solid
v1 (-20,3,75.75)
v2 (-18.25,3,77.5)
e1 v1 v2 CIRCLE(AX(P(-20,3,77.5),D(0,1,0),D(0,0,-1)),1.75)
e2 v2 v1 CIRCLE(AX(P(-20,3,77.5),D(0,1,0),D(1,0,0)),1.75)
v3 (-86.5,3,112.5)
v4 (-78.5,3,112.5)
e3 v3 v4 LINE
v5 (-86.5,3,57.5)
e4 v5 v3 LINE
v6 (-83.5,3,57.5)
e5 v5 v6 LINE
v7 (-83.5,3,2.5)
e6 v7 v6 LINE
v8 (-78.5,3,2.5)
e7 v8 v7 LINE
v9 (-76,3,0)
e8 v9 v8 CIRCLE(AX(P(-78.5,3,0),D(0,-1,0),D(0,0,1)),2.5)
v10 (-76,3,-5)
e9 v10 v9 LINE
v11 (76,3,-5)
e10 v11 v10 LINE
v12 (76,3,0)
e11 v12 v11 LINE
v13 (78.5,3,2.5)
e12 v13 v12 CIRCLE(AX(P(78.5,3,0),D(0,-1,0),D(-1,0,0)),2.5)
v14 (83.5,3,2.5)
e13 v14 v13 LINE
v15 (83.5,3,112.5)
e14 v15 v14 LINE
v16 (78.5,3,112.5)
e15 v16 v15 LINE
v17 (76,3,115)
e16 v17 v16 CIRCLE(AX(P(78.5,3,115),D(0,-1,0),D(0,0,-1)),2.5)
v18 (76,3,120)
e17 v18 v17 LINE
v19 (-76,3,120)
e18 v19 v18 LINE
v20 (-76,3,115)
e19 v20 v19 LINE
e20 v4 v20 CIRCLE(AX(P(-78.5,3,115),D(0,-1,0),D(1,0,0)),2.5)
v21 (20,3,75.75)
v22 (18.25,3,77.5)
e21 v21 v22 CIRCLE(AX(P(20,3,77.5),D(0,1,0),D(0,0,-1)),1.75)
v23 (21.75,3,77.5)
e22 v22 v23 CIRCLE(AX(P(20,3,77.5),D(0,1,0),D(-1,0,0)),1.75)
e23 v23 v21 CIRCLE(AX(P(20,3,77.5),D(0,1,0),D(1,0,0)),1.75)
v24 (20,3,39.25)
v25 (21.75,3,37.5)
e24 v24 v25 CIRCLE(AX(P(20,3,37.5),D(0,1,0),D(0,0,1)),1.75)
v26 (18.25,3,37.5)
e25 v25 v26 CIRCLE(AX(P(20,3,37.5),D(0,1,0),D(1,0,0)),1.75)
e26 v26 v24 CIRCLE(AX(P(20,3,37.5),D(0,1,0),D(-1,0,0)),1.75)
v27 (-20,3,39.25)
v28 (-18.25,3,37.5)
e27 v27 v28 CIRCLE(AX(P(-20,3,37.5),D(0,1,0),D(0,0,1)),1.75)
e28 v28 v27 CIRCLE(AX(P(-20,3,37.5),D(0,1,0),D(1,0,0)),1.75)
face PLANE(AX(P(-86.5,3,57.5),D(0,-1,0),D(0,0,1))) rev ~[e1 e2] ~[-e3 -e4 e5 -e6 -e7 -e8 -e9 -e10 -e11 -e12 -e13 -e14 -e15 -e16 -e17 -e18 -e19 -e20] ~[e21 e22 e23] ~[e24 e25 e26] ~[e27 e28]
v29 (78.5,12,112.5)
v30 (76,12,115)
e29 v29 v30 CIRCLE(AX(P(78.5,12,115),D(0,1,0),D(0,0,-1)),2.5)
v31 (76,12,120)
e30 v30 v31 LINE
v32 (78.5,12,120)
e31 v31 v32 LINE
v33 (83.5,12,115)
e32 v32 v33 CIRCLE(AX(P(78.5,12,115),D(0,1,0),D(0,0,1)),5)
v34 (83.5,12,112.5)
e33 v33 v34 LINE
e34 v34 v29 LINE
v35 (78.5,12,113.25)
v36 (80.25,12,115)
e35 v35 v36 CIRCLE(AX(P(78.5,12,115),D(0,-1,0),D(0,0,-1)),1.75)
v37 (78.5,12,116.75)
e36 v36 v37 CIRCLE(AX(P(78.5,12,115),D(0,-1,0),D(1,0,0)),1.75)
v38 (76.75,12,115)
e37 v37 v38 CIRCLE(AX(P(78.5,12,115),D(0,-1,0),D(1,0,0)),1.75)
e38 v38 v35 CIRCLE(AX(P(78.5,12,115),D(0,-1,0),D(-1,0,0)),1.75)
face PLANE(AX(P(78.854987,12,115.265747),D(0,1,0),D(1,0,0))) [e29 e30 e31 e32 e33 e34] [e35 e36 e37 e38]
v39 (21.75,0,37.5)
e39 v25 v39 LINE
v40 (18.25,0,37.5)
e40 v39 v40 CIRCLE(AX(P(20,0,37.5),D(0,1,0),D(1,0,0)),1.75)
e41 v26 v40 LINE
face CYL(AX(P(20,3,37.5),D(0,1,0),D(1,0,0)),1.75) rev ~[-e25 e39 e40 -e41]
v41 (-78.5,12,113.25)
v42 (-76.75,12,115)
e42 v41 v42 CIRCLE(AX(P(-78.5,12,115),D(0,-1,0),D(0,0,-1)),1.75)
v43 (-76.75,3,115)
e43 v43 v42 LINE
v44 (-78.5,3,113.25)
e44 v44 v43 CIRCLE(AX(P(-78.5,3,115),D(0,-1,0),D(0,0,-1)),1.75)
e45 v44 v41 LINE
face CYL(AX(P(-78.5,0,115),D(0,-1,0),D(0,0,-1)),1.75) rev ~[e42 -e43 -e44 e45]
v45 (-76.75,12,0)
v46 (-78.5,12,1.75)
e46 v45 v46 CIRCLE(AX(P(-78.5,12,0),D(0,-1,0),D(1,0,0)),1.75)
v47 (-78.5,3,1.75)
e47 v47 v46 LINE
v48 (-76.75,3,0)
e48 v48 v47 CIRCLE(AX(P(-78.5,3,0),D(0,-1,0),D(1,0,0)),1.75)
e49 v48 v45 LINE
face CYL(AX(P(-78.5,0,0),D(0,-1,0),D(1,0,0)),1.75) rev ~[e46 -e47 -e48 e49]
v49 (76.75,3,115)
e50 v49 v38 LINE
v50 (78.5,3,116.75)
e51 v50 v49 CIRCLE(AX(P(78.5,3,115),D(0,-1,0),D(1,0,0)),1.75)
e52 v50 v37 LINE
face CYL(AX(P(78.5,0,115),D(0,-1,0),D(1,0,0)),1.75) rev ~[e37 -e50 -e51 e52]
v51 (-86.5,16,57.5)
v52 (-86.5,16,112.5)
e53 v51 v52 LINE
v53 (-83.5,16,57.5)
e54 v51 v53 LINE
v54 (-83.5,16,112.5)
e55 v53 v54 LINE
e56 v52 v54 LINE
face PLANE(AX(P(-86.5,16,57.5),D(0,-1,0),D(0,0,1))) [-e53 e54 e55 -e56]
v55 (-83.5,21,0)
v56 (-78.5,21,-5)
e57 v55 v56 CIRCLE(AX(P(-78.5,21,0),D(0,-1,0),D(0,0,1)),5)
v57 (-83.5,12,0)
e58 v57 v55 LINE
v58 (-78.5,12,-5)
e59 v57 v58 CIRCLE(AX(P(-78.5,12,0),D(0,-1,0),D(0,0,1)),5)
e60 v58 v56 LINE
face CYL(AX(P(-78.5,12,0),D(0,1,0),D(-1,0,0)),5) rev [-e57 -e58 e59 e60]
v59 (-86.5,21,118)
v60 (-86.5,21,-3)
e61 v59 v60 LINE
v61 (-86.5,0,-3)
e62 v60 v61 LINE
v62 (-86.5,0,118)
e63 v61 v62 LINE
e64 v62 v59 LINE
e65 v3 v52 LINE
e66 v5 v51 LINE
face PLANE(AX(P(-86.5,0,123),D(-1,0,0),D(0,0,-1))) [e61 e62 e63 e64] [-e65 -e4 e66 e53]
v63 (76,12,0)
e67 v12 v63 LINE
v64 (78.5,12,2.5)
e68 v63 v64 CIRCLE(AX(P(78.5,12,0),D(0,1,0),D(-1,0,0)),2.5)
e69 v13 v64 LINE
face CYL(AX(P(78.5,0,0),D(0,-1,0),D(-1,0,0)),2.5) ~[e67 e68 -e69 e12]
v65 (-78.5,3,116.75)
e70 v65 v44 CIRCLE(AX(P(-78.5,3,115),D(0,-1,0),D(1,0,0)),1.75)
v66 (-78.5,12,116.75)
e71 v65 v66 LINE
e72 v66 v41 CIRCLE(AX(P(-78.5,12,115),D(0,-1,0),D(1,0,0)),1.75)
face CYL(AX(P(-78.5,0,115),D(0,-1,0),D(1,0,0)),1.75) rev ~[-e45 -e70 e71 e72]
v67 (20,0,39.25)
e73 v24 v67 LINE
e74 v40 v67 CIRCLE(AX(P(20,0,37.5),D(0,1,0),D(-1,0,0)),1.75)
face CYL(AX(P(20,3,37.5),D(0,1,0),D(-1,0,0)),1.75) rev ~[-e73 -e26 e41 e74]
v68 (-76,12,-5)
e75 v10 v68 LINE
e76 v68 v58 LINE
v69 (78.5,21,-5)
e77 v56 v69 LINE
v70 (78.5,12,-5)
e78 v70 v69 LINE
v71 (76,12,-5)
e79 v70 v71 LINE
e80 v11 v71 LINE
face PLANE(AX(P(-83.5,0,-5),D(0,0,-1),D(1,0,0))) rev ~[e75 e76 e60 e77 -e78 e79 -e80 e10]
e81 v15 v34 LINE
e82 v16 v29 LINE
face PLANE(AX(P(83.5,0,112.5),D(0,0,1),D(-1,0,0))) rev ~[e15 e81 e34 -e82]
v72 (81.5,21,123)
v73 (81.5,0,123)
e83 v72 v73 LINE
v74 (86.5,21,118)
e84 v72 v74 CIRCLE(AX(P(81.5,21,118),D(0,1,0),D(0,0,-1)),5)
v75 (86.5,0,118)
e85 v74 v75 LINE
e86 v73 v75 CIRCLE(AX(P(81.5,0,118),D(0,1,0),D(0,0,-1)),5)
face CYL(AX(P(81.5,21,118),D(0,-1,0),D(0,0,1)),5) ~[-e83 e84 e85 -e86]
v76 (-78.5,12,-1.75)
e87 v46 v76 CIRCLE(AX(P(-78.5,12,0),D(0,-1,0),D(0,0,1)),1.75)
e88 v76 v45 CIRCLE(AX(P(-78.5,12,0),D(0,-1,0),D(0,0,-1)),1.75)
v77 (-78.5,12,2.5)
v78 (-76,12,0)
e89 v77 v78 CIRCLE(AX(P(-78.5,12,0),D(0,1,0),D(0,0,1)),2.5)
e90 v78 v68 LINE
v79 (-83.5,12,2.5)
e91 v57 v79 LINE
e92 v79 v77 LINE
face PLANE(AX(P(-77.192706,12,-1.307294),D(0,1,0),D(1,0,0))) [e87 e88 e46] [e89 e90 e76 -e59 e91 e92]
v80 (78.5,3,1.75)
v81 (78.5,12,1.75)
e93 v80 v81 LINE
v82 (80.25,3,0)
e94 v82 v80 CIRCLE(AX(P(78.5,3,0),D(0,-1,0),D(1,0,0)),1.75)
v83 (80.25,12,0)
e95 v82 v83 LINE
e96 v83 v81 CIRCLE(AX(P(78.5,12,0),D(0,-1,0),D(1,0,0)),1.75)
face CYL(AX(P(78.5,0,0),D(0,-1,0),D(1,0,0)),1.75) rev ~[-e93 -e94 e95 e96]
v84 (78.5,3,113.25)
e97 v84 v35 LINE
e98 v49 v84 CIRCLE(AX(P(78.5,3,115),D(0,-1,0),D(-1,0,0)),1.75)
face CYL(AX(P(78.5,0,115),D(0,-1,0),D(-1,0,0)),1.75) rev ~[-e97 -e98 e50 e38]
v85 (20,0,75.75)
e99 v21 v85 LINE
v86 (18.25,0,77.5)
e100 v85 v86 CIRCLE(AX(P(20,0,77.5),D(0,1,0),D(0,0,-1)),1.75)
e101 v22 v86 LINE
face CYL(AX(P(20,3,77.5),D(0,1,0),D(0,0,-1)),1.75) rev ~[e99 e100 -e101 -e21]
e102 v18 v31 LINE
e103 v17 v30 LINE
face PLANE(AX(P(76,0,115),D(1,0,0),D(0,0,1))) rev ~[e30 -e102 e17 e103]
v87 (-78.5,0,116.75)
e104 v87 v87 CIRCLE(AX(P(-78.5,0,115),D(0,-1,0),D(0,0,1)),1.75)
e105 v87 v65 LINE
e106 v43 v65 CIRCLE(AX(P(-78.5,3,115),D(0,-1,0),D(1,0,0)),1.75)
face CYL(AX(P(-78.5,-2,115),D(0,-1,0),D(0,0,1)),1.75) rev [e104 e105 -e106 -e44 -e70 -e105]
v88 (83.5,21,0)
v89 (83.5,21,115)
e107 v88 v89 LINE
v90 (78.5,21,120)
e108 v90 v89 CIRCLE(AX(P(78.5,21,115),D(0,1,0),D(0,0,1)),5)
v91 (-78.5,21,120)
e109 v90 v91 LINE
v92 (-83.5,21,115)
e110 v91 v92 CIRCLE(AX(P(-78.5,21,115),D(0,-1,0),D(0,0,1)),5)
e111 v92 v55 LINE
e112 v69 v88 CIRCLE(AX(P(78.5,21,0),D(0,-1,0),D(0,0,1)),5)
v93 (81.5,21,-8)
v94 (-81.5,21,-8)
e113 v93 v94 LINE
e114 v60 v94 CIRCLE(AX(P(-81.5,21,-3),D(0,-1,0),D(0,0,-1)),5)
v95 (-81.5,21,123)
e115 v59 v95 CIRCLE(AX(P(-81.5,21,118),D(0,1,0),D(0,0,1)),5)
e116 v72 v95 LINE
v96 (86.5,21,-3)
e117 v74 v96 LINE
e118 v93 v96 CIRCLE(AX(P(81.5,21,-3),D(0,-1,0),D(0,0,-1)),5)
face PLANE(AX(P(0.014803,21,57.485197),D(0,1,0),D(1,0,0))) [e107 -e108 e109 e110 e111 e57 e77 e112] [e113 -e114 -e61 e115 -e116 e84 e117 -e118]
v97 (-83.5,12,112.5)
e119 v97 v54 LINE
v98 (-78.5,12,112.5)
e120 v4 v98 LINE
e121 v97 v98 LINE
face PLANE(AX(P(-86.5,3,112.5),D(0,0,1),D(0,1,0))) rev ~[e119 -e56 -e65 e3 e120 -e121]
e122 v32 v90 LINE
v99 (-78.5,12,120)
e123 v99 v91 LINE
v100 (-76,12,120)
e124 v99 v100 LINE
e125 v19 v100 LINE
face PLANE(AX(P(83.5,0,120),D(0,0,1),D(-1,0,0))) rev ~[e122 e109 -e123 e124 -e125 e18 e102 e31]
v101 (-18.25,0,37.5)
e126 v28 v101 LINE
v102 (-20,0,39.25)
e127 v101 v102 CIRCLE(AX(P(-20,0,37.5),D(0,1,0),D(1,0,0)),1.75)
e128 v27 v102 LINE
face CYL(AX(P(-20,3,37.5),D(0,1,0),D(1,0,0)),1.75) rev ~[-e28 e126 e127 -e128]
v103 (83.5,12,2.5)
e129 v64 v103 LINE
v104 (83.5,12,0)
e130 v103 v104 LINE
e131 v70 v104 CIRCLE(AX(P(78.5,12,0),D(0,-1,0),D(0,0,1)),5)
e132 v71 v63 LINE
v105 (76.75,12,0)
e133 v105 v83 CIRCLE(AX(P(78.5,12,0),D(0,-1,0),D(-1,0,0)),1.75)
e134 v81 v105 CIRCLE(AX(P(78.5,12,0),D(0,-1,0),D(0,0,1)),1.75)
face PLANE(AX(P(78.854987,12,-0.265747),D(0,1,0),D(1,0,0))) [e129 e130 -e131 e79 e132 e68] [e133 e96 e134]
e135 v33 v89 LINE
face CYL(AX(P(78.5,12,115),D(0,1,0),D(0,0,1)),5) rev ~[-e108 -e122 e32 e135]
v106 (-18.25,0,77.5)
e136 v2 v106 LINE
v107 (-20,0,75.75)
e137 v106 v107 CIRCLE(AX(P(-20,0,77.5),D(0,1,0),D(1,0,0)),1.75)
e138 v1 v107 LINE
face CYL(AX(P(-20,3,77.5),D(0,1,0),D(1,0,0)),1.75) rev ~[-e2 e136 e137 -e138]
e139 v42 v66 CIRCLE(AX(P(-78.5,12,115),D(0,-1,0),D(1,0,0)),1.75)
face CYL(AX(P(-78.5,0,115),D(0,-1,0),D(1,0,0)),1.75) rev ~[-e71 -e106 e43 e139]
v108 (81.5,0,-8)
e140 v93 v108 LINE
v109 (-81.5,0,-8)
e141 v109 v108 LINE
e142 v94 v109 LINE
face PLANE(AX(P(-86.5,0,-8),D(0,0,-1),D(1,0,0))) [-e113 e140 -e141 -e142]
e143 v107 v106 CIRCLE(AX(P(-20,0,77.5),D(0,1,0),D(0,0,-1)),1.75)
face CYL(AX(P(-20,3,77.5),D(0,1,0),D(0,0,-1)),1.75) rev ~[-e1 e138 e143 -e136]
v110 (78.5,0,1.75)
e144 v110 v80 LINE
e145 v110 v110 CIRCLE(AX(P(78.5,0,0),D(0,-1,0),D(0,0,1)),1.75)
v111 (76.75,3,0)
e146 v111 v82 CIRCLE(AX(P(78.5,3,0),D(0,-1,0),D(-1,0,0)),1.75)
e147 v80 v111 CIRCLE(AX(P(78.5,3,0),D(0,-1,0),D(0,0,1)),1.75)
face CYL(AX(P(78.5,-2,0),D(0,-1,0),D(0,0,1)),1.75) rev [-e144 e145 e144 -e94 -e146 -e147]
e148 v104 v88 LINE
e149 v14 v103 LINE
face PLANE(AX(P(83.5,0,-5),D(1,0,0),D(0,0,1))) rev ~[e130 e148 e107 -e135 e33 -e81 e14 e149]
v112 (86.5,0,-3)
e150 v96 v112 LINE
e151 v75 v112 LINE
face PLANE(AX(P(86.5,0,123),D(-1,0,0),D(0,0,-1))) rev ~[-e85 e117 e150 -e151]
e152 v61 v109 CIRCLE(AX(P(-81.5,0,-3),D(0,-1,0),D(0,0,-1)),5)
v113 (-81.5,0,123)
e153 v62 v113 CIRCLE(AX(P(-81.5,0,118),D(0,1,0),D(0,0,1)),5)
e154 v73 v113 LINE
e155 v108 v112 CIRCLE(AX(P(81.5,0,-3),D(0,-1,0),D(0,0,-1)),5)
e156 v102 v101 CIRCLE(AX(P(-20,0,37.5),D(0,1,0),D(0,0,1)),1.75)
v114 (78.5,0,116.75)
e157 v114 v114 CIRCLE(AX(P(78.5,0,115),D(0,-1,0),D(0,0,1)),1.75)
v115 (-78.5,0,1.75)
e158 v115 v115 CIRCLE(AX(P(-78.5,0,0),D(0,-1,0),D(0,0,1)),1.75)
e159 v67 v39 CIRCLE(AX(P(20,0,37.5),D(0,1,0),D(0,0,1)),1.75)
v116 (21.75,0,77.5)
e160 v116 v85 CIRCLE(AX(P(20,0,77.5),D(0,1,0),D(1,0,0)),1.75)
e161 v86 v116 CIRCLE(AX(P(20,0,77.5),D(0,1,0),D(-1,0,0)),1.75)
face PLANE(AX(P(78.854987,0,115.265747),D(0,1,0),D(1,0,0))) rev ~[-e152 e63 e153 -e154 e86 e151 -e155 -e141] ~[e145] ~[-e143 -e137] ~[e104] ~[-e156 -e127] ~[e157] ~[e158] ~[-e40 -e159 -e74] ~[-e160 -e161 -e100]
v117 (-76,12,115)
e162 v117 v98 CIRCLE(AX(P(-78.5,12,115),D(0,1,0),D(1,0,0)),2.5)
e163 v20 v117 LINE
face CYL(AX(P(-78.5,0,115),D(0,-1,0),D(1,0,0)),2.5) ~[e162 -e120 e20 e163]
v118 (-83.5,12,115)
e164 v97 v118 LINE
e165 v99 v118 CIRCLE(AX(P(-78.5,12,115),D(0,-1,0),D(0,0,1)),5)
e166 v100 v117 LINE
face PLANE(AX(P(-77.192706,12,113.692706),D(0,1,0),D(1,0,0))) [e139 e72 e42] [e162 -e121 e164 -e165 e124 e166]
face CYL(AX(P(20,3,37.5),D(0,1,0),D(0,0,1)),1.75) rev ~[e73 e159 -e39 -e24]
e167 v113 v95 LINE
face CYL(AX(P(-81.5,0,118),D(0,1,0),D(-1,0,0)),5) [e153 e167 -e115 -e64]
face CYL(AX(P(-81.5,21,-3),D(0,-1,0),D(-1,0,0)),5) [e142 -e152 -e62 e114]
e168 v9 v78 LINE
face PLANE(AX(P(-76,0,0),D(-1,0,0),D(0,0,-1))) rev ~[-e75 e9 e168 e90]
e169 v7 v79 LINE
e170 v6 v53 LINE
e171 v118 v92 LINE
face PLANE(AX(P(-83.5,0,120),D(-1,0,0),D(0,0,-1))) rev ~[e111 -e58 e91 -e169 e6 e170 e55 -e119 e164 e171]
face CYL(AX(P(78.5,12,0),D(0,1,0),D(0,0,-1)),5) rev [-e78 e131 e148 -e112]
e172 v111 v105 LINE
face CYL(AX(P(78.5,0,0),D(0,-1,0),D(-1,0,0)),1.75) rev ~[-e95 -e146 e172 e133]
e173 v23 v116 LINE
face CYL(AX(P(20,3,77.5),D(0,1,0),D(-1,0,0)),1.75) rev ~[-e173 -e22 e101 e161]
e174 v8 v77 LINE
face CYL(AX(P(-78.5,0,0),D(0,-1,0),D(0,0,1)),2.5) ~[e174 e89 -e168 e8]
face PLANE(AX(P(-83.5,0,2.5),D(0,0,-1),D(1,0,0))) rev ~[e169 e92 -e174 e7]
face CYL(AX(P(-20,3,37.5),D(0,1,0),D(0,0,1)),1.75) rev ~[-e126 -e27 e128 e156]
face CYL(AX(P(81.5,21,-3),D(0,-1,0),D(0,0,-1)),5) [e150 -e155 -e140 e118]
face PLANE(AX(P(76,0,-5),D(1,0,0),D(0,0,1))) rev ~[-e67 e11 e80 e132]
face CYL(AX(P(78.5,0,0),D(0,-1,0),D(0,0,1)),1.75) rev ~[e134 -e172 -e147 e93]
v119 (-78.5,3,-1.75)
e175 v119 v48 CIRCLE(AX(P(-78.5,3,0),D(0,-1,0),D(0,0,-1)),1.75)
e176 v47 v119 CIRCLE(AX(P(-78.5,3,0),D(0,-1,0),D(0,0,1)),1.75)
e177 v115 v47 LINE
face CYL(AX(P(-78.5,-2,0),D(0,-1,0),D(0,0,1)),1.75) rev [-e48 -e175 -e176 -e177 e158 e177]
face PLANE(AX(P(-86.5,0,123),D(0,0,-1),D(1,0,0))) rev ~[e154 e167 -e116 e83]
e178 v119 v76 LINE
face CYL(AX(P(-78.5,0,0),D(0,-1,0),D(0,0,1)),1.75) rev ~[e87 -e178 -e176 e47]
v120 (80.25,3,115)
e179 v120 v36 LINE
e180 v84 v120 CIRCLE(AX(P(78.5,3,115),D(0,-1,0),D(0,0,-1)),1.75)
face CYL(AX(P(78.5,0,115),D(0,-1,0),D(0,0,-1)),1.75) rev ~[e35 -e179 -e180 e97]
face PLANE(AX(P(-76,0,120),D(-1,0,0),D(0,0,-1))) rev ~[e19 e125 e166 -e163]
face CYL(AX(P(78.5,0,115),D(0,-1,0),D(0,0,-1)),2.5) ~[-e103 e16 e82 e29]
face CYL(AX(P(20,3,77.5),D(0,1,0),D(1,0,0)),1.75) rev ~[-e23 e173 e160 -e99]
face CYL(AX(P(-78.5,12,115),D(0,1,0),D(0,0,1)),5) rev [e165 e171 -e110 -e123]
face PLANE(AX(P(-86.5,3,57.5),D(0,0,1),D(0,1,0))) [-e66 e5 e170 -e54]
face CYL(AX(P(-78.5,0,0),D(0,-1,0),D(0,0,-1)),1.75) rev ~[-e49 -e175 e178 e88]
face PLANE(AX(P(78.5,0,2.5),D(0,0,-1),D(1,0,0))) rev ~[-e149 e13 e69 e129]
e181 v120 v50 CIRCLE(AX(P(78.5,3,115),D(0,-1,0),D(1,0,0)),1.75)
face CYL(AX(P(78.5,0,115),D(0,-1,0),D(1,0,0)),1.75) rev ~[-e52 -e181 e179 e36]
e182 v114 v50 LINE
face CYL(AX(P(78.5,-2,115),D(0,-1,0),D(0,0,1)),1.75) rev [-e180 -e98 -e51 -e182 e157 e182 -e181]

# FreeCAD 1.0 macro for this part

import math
import FreeCAD as App
import Part
import Sketcher
from FreeCAD import Vector


def edges_at(feature, points):
    """Names of the edges that pass closest to the given points."""
    edges = feature.Shape.Edges
    near = lambda p: min(range(len(edges)), key=lambda i: edges[i].distToShape(Part.Vertex(*p))[0])
    return sorted({f"Edge{near(p) + 1}" for p in points})


def add_polygon(sketch, points):
    """Adds a closed chain of lines whose ends are joined by coincident constraints."""
    first, n = sketch.GeometryCount, len(points)
    for a, b in zip(points, points[1:] + points[:1]):
        sketch.addGeometry(Part.LineSegment(App.Vector(*a, 0), App.Vector(*b, 0)), False)
    for i in range(n):
        sketch.addConstraint(Sketcher.Constraint("Coincident", first + i, 2, first + (i + 1) % n, 1))

doc = App.newDocument("Part")
body = doc.addObject("PartDesign::Body", "Body")

# Sketch on XZ plane
sketch1 = body.newObject("Sketcher::SketchObject", "Sketch")
sketch1.AttachmentSupport = (doc.getObject("XZ_Plane"), [""])
sketch1.MapMode = "FlatFace"
add_polygon(sketch1, [(-86, -8), (-86, 123), (86, 123), (86, -8)])  # lines 0-3
sketch1.addConstraint([
    Sketcher.Constraint("Vertical", 0),
    Sketcher.Constraint("Horizontal", 1),
    Sketcher.Constraint("Vertical", 2),
    Sketcher.Constraint("Horizontal", 3),
    Sketcher.Constraint("DistanceX", 1, 1, 1, 2, 173.0),
    Sketcher.Constraint("DistanceY", 0, 1, 0, 2, 131.0),
    Sketcher.Constraint("DistanceY", -1, 1, 0, 2, 123.0),
    Sketcher.Constraint("DistanceX", 0, 2, -1, 1, 86.5),
])
pad1 = body.newObject("PartDesign::Pad", "Pad")
pad1.Profile = sketch1
pad1.Length = 3
pad1.Reversed = True

# Sketch on XZ plane
sketch2 = body.newObject("Sketcher::SketchObject", "Sketch001")
sketch2.AttachmentSupport = (doc.getObject("XZ_Plane"), [""])
sketch2.MapMode = "FlatFace"
add_polygon(sketch2, [(86, -8), (-86, -8), (-86, 123), (86, 123)])  # lines 0-3
add_polygon(sketch2, [(84, 120), (-84, 120), (-84, -5), (84, -5)])  # lines 4-7
sketch2.addConstraint([
    Sketcher.Constraint("Horizontal", 0),
    Sketcher.Constraint("Vertical", 1),
    Sketcher.Constraint("Horizontal", 2),
    Sketcher.Constraint("Vertical", 3),
    Sketcher.Constraint("Horizontal", 4),
    Sketcher.Constraint("Vertical", 5),
    Sketcher.Constraint("Horizontal", 6),
    Sketcher.Constraint("Vertical", 7),
    Sketcher.Constraint("DistanceX", 0, 2, 0, 1, 173.0),
    Sketcher.Constraint("DistanceX", 4, 2, 4, 1, 167.0),
    Sketcher.Constraint("DistanceY", 1, 1, 1, 2, 131.0),
    Sketcher.Constraint("DistanceY", 5, 2, 5, 1, 125.0),
    Sketcher.Constraint("DistanceY", 0, 2, -1, 1, 8.0),
    Sketcher.Constraint("DistanceY", -1, 1, 4, 2, 120.0),
    Sketcher.Constraint("DistanceX", 1, 2, 4, 2, 3.0),
    Sketcher.Constraint("DistanceX", 0, 2, -1, 1, 86.5),
])
pad2 = body.newObject("PartDesign::Pad", "Pad001")
pad2.Profile = sketch2
pad2.Length = 21
pad2.Reversed = True

# Sketch on XZ plane
sketch3 = body.newObject("Sketcher::SketchObject", "Sketch002")
sketch3.AttachmentSupport = (doc.getObject("XZ_Plane"), [""])
sketch3.MapMode = "FlatFace"
sketch3.addGeometry([
    Part.ArcOfCircle(Part.Circle(Vector(78.5, 115, 0), Vector(0, 0, 1), 2.5), math.radians(180), math.radians(270)),  # 0
    Part.LineSegment(Vector(76, 115, 0), Vector(76, 120, 0)),  # 1
    Part.LineSegment(Vector(76, 120, 0), Vector(83.5, 120, 0)),  # 2
    Part.LineSegment(Vector(83.5, 120, 0), Vector(83.5, 112.5, 0)),  # 3
    Part.LineSegment(Vector(83.5, 112.5, 0), Vector(78.5, 112.5, 0)),  # 4
    Part.ArcOfCircle(Part.Circle(Vector(78.5, 115, 0), Vector(0, 0, 1), 1.8), math.radians(0), math.radians(180)),  # 5
    Part.ArcOfCircle(Part.Circle(Vector(78.5, 115, 0), Vector(0, 0, 1), 1.8), math.radians(180), math.radians(270)),  # 6
    Part.ArcOfCircle(Part.Circle(Vector(78.5, 115, 0), Vector(0, 0, 1), 1.8), math.radians(-90), math.radians(0)),  # 7
    Part.ArcOfCircle(Part.Circle(Vector(-78.5, 115, 0), Vector(0, 0, 1), 2.5), math.radians(-90), math.radians(0)),  # 8
    Part.LineSegment(Vector(-78.5, 112.5, 0), Vector(-83.5, 112.5, 0)),  # 9
    Part.LineSegment(Vector(-83.5, 112.5, 0), Vector(-83.5, 120, 0)),  # 10
    Part.LineSegment(Vector(-83.5, 120, 0), Vector(-76, 120, 0)),  # 11
    Part.LineSegment(Vector(-76, 120, 0), Vector(-76, 115, 0)),  # 12
    Part.ArcOfCircle(Part.Circle(Vector(-78.5, 115, 0), Vector(0, 0, 1), 1.8), math.radians(-90), math.radians(0)),  # 13
    Part.ArcOfCircle(Part.Circle(Vector(-78.5, 115, 0), Vector(0, 0, 1), 1.8), math.radians(0), math.radians(270)),  # 14
    Part.LineSegment(Vector(-83.5, -5, 0), Vector(-83.5, 2.5, 0)),  # 15
    Part.LineSegment(Vector(-83.5, 2.5, 0), Vector(-78.5, 2.5, 0)),  # 16
    Part.ArcOfCircle(Part.Circle(Vector(-78.5, 0, 0), Vector(0, 0, 1), 2.5), math.radians(0), math.radians(90)),  # 17
    Part.LineSegment(Vector(-76, 0, 0), Vector(-76, -5, 0)),  # 18
    Part.LineSegment(Vector(-76, -5, 0), Vector(-83.5, -5, 0)),  # 19
    Part.ArcOfCircle(Part.Circle(Vector(-78.5, 0, 0), Vector(0, 0, 1), 1.8), math.radians(90), math.radians(270)),  # 20
    Part.ArcOfCircle(Part.Circle(Vector(-78.5, 0, 0), Vector(0, 0, 1), 1.8), math.radians(-90), math.radians(0)),  # 21
    Part.ArcOfCircle(Part.Circle(Vector(-78.5, 0, 0), Vector(0, 0, 1), 1.8), math.radians(0), math.radians(90)),  # 22
    Part.ArcOfCircle(Part.Circle(Vector(78.5, 0, 0), Vector(0, 0, 1), 2.5), math.radians(90), math.radians(180)),  # 23
    Part.LineSegment(Vector(78.5, 2.5, 0), Vector(83.5, 2.5, 0)),  # 24
    Part.LineSegment(Vector(83.5, 2.5, 0), Vector(83.5, -5, 0)),  # 25
    Part.LineSegment(Vector(83.5, -5, 0), Vector(76, -5, 0)),  # 26
    Part.LineSegment(Vector(76, -5, 0), Vector(76, 0, 0)),  # 27
    Part.ArcOfCircle(Part.Circle(Vector(78.5, 0, 0), Vector(0, 0, 1), 1.8), math.radians(0), math.radians(90)),  # 28
    Part.ArcOfCircle(Part.Circle(Vector(78.5, 0, 0), Vector(0, 0, 1), 1.8), math.radians(90), math.radians(180)),  # 29
    Part.ArcOfCircle(Part.Circle(Vector(78.5, 0, 0), Vector(0, 0, 1), 1.8), math.radians(180), math.radians(360)),  # 30
], False)
sketch3.addConstraint([
    Sketcher.Constraint("Tangent", 0, 1, 1, 1),
    Sketcher.Constraint("Coincident", 1, 2, 2, 1),
    Sketcher.Constraint("Coincident", 2, 2, 3, 1),
    Sketcher.Constraint("Coincident", 3, 2, 4, 1),
    Sketcher.Constraint("Tangent", 4, 2, 0, 2),
    Sketcher.Constraint("Tangent", 5, 2, 6, 1),
    Sketcher.Constraint("Tangent", 6, 2, 7, 1),
    Sketcher.Constraint("Tangent", 7, 2, 5, 1),
    Sketcher.Constraint("Tangent", 8, 1, 9, 1),
    Sketcher.Constraint("Coincident", 9, 2, 10, 1),
    Sketcher.Constraint("Coincident", 10, 2, 11, 1),
    Sketcher.Constraint("Coincident", 11, 2, 12, 1),
    Sketcher.Constraint("Tangent", 12, 2, 8, 2),
    Sketcher.Constraint("Tangent", 13, 1, 14, 2),
    Sketcher.Constraint("Coincident", 14, 1, 13, 2),
    Sketcher.Constraint("Coincident", 15, 2, 16, 1),
    Sketcher.Constraint("Tangent", 16, 2, 17, 2),
    Sketcher.Constraint("Tangent", 17, 1, 18, 1),
    Sketcher.Constraint("Coincident", 18, 2, 19, 1),
    Sketcher.Constraint("Coincident", 19, 2, 15, 1),
    Sketcher.Constraint("Tangent", 20, 2, 21, 1),
    Sketcher.Constraint("Tangent", 21, 2, 22, 1),
    Sketcher.Constraint("Tangent", 22, 2, 20, 1),
    Sketcher.Constraint("Tangent", 23, 1, 24, 1),
    Sketcher.Constraint("Coincident", 24, 2, 25, 1),
    Sketcher.Constraint("Coincident", 25, 2, 26, 1),
    Sketcher.Constraint("Coincident", 26, 2, 27, 1),
    Sketcher.Constraint("Tangent", 27, 2, 23, 2),
    Sketcher.Constraint("Tangent", 28, 2, 29, 1),
    Sketcher.Constraint("Tangent", 29, 2, 30, 1),
    Sketcher.Constraint("Tangent", 30, 2, 28, 1),
    Sketcher.Constraint("Vertical", 1),
    Sketcher.Constraint("Horizontal", 2),
    Sketcher.Constraint("Vertical", 3),
    Sketcher.Constraint("Horizontal", 4),
    Sketcher.Constraint("Horizontal", 9),
    Sketcher.Constraint("Vertical", 10),
    Sketcher.Constraint("Horizontal", 11),
    Sketcher.Constraint("Vertical", 12),
    Sketcher.Constraint("Vertical", 15),
    Sketcher.Constraint("Horizontal", 16),
    Sketcher.Constraint("Vertical", 18),
    Sketcher.Constraint("Horizontal", 19),
    Sketcher.Constraint("Horizontal", 24),
    Sketcher.Constraint("Vertical", 25),
    Sketcher.Constraint("Horizontal", 26),
    Sketcher.Constraint("Vertical", 27),
    Sketcher.Constraint("Coincident", 5, 3, 0, 3),
    Sketcher.Constraint("Coincident", 13, 3, 8, 3),
    Sketcher.Constraint("Coincident", 20, 3, 17, 3),
    Sketcher.Constraint("Coincident", 28, 3, 23, 3),
    Sketcher.Constraint("Equal", 0, 8),
    Sketcher.Constraint("Equal", 7, 13),
    Sketcher.Constraint("Equal", 8, 17),
    Sketcher.Constraint("Equal", 14, 20),
    Sketcher.Constraint("Equal", 17, 23),
    Sketcher.Constraint("Equal", 22, 28),
    Sketcher.Constraint("Symmetric", 17, 3, 23, 3, -1, 1),
    Sketcher.Constraint("Symmetric", 0, 3, 8, 3, -2),
    Sketcher.Constraint("Symmetric", 2, 2, 10, 2, -2),
    Sketcher.Constraint("Symmetric", 15, 2, 24, 2, -2),
    Sketcher.Constraint("PointOnObject", 21, 2, -1),
    Sketcher.Constraint("PointOnObject", 29, 2, -1),
    Sketcher.Constraint("PointOnObject", 30, 2, -1),
    Sketcher.Constraint("Horizontal", 0, 1, 5, 2),
    Sketcher.Constraint("Horizontal", 5, 2, 7, 2),
    Sketcher.Constraint("Horizontal", 12, 2, 14, 1),
    Sketcher.Constraint("Horizontal", 19, 2, 25, 2),
    Sketcher.Constraint("Vertical", 14, 3, 17, 3),
    Sketcher.Constraint("Vertical", 4, 2, 6, 2),
    Sketcher.Constraint("Vertical", 8, 1, 13, 1),
    Sketcher.Constraint("Vertical", 10, 2, 15, 2),
    Sketcher.Constraint("Vertical", 16, 2, 20, 2),
    Sketcher.Constraint("Vertical", 20, 2, 22, 2),
    Sketcher.Constraint("Vertical", 23, 1, 28, 2),
    Sketcher.Constraint("Equal", 24, 1),
    Sketcher.Constraint("Equal", 10, 15),
    Sketcher.Constraint("Radius", 0, 2.5),
    Sketcher.Constraint("DistanceX", 4, 2, 4, 1, 5.0),
    Sketcher.Constraint("Radius", 5, 1.75),
    Sketcher.Constraint("DistanceY", -1, 1, 0, 3, 115.0),
    Sketcher.Constraint("DistanceX", -1, 1, 0, 1, 76.0),
])
pad3 = body.newObject("PartDesign::Pad", "Pad002")
pad3.Profile = sketch3
pad3.Length = 12
pad3.Reversed = True

# Sketch on YZ plane
sketch4 = body.newObject("Sketcher::SketchObject", "Sketch003")
sketch4.AttachmentSupport = (doc.getObject("YZ_Plane"), [""])
sketch4.MapMode = "FlatFace"
sketch4.AttachmentOffset = App.Placement(Vector(0, 0, -86.5), App.Rotation())
add_polygon(sketch4, [(16, 58), (3, 58), (3, 112), (16, 112)])  # lines 0-3
sketch4.addConstraint([
    Sketcher.Constraint("Horizontal", 0),
    Sketcher.Constraint("Vertical", 1),
    Sketcher.Constraint("Horizontal", 2),
    Sketcher.Constraint("Vertical", 3),
    Sketcher.Constraint("DistanceX", 0, 2, 0, 1, 13.0),
    Sketcher.Constraint("DistanceY", 1, 1, 1, 2, 55.0),
    Sketcher.Constraint("DistanceX", -1, 1, 0, 2, 3.0),
    Sketcher.Constraint("DistanceY", -1, 1, 0, 2, 57.5),
])
pocket1 = body.newObject("PartDesign::Pocket", "Pocket")
pocket1.Profile = sketch4
pocket1.Length = 4
pocket1.Reversed = True

# Sketch on XZ plane
sketch5 = body.newObject("Sketcher::SketchObject", "Sketch004")
sketch5.AttachmentSupport = (doc.getObject("XZ_Plane"), [""])
sketch5.MapMode = "FlatFace"
sketch5.AttachmentOffset = App.Placement(Vector(0, 0, 2), App.Rotation())
sketch5.addGeometry([
    Part.Circle(Vector(-78.5, 0, 0), Vector(0, 0, 1), 1.8),
    Part.Circle(Vector(78.5, 0, 0), Vector(0, 0, 1), 1.8),
    Part.Circle(Vector(78.5, 115, 0), Vector(0, 0, 1), 1.8),
    Part.Circle(Vector(-78.5, 115, 0), Vector(0, 0, 1), 1.8),
], False)
sketch5.addConstraint([
    Sketcher.Constraint("Equal", 0, 1),
    Sketcher.Constraint("Equal", 1, 2),
    Sketcher.Constraint("Equal", 2, 3),
    Sketcher.Constraint("Symmetric", 0, 3, 1, 3, -1, 1),
    Sketcher.Constraint("Symmetric", 2, 3, 3, 3, -2),
    Sketcher.Constraint("PointOnObject", 0, 3, -1),
    Sketcher.Constraint("Vertical", 1, 3, 2, 3),
    Sketcher.Constraint("Diameter", 0, 3.5),
    Sketcher.Constraint("DistanceY", -1, 1, 2, 3, 115.0),
    Sketcher.Constraint("DistanceX", 0, 3, 1, 3, 157.0),
])
pocket2 = body.newObject("PartDesign::Pocket", "Pocket001")
pocket2.Profile = sketch5
pocket2.Length = 14

# Sketch on XZ plane
sketch6 = body.newObject("Sketcher::SketchObject", "Sketch005")
sketch6.AttachmentSupport = (doc.getObject("XZ_Plane"), [""])
sketch6.MapMode = "FlatFace"
sketch6.AttachmentOffset = App.Placement(Vector(0, 0, -3), App.Rotation())
sketch6.addGeometry([
    Part.ArcOfCircle(Part.Circle(Vector(20, 37.5, 0), Vector(0, 0, 1), 1.8), math.radians(90), math.radians(180)),  # 0
    Part.LineSegment(Vector(20, 39.2, 0), Vector(20, 37.5, 0)),  # 1
    Part.LineSegment(Vector(20, 37.5, 0), Vector(18.2, 37.5, 0)),  # 2
    Part.LineSegment(Vector(20, 37.5, 0), Vector(20, 39.2, 0)),  # 3
    Part.ArcOfCircle(Part.Circle(Vector(20, 37.5, 0), Vector(0, 0, 1), 1.8), math.radians(0), math.radians(90)),  # 4
    Part.ArcOfCircle(Part.Circle(Vector(20, 37.5, 0), Vector(0, 0, 1), 1.8), math.radians(180), math.radians(360)),  # 5
    Part.LineSegment(Vector(18.2, 37.5, 0), Vector(20, 37.5, 0)),  # 6
    Part.ArcOfCircle(Part.Circle(Vector(20, 77.5, 0), Vector(0, 0, 1), 1.8), math.radians(-90), math.radians(0)),  # 7
    Part.LineSegment(Vector(20, 75.8, 0), Vector(20, 77.5, 0)),  # 8
    Part.LineSegment(Vector(20, 77.5, 0), Vector(18.2, 77.5, 0)),  # 9
    Part.ArcOfCircle(Part.Circle(Vector(20, 77.5, 0), Vector(0, 0, 1), 1.8), math.radians(0), math.radians(180)),  # 10
    Part.LineSegment(Vector(20, 77.5, 0), Vector(20, 75.8, 0)),  # 11
    Part.ArcOfCircle(Part.Circle(Vector(20, 77.5, 0), Vector(0, 0, 1), 1.8), math.radians(180), math.radians(270)),  # 12
    Part.LineSegment(Vector(18.2, 77.5, 0), Vector(20, 77.5, 0)),  # 13
    Part.ArcOfCircle(Part.Circle(Vector(-20, 77.5, 0), Vector(0, 0, 1), 1.8), math.radians(-90), math.radians(0)),  # 14
    Part.LineSegment(Vector(-20, 75.8, 0), Vector(-20, 77.5, 0)),  # 15
    Part.LineSegment(Vector(-20, 77.5, 0), Vector(-18.2, 77.5, 0)),  # 16
    Part.LineSegment(Vector(-20, 77.5, 0), Vector(-20, 75.8, 0)),  # 17
    Part.ArcOfCircle(Part.Circle(Vector(-20, 77.5, 0), Vector(0, 0, 1), 1.8), math.radians(0), math.radians(270)),  # 18
    Part.LineSegment(Vector(-18.2, 77.5, 0), Vector(-20, 77.5, 0)),  # 19
    Part.ArcOfCircle(Part.Circle(Vector(-20, 37.5, 0), Vector(0, 0, 1), 1.8), math.radians(90), math.radians(360)),  # 20
    Part.LineSegment(Vector(-20, 39.2, 0), Vector(-20, 37.5, 0)),  # 21
    Part.LineSegment(Vector(-20, 37.5, 0), Vector(-18.2, 37.5, 0)),  # 22
    Part.LineSegment(Vector(-20, 37.5, 0), Vector(-20, 39.2, 0)),  # 23
    Part.ArcOfCircle(Part.Circle(Vector(-20, 37.5, 0), Vector(0, 0, 1), 1.8), math.radians(0), math.radians(90)),  # 24
    Part.LineSegment(Vector(-18.2, 37.5, 0), Vector(-20, 37.5, 0)),  # 25
], False)
sketch6.addConstraint([
    Sketcher.Constraint("Coincident", 0, 1, 1, 1),
    Sketcher.Constraint("Coincident", 1, 2, 2, 1),
    Sketcher.Constraint("Coincident", 2, 2, 0, 2),
    Sketcher.Constraint("Coincident", 3, 2, 4, 2),
    Sketcher.Constraint("Tangent", 4, 1, 5, 2),
    Sketcher.Constraint("Coincident", 5, 1, 6, 1),
    Sketcher.Constraint("Coincident", 6, 2, 3, 1),
    Sketcher.Constraint("Coincident", 7, 1, 8, 1),
    Sketcher.Constraint("Coincident", 8, 2, 9, 1),
    Sketcher.Constraint("Coincident", 9, 2, 10, 2),
    Sketcher.Constraint("Tangent", 10, 1, 7, 2),
    Sketcher.Constraint("Coincident", 11, 2, 12, 2),
    Sketcher.Constraint("Coincident", 12, 1, 13, 1),
    Sketcher.Constraint("Coincident", 13, 2, 11, 1),
    Sketcher.Constraint("Coincident", 14, 1, 15, 1),
    Sketcher.Constraint("Coincident", 15, 2, 16, 1),
    Sketcher.Constraint("Coincident", 16, 2, 14, 2),
    Sketcher.Constraint("Coincident", 17, 2, 18, 2),
    Sketcher.Constraint("Coincident", 18, 1, 19, 1),
    Sketcher.Constraint("Coincident", 19, 2, 17, 1),
    Sketcher.Constraint("Coincident", 20, 1, 21, 1),
    Sketcher.Constraint("Coincident", 21, 2, 22, 1),
    Sketcher.Constraint("Coincident", 22, 2, 20, 2),
    Sketcher.Constraint("Coincident", 23, 2, 24, 2),
    Sketcher.Constraint("Coincident", 24, 1, 25, 1),
    Sketcher.Constraint("Coincident", 25, 2, 23, 1),
    Sketcher.Constraint("Vertical", 1),
    Sketcher.Constraint("Horizontal", 2),
    Sketcher.Constraint("Vertical", 3),
    Sketcher.Constraint("Horizontal", 6),
    Sketcher.Constraint("Vertical", 8),
    Sketcher.Constraint("Horizontal", 9),
    Sketcher.Constraint("Vertical", 11),
    Sketcher.Constraint("Horizontal", 13),
    Sketcher.Constraint("Vertical", 15),
    Sketcher.Constraint("Horizontal", 16),
    Sketcher.Constraint("Vertical", 17),
    Sketcher.Constraint("Horizontal", 19),
    Sketcher.Constraint("Vertical", 21),
    Sketcher.Constraint("Horizontal", 22),
    Sketcher.Constraint("Vertical", 23),
    Sketcher.Constraint("Horizontal", 25),
    Sketcher.Constraint("Coincident", 4, 3, 0, 3),
    Sketcher.Constraint("Coincident", 12, 3, 7, 3),
    Sketcher.Constraint("Coincident", 18, 3, 14, 3),
    Sketcher.Constraint("Coincident", 24, 3, 20, 3),
    Sketcher.Constraint("Coincident", 1, 2, 0, 3),
    Sketcher.Constraint("Coincident", 3, 2, 0, 1),
    Sketcher.Constraint("Coincident", 5, 1, 2, 2),
    Sketcher.Constraint("Coincident", 8, 2, 7, 3),
    Sketcher.Constraint("Coincident", 11, 2, 7, 1),
    Sketcher.Constraint("Coincident", 12, 1, 9, 2),
    Sketcher.Constraint("Coincident", 15, 2, 14, 3),
    Sketcher.Constraint("Coincident", 17, 2, 14, 1),
    Sketcher.Constraint("Coincident", 21, 2, 20, 3),
    Sketcher.Constraint("Coincident", 23, 2, 20, 1),
    Sketcher.Constraint("Equal", 5, 7),
    Sketcher.Constraint("Equal", 12, 14),
    Sketcher.Constraint("Equal", 18, 20),
    Sketcher.Constraint("Symmetric", 7, 3, 14, 3, -2),
    Sketcher.Constraint("Symmetric", 0, 3, 20, 3, -2),
    Sketcher.Constraint("Horizontal", 2, 2, 4, 1),
    Sketcher.Constraint("Horizontal", 9, 2, 10, 1),
    Sketcher.Constraint("Horizontal", 15, 2, 18, 1),
    Sketcher.Constraint("Horizontal", 21, 2, 24, 1),
    Sketcher.Constraint("Vertical", 5, 3, 7, 3),
    Sketcher.Constraint("Radius", 0, 1.75),
    Sketcher.Constraint("DistanceX", -1, 1, 0, 3, 20.0),
    Sketcher.Constraint("DistanceY", 0, 3, 7, 3, 40.0),
    Sketcher.Constraint("DistanceY", -1, 1, 0, 3, 37.5),
])
pocket3 = body.newObject("PartDesign::Pocket", "Pocket002")
pocket3.Profile = sketch6
pocket3.Length = 4
pocket3.Reversed = True
doc.recompute()

fillet = body.newObject("PartDesign::Fillet", "Fillet")
fillet.Base = (pocket3, edges_at(pocket3, [
    (-86.5, 10.5, 123),
    (-86.5, 10.5, -8),
    (86.5, 10.5, -8),
    (86.5, 10.5, 123),
]))
fillet.Radius = 5
doc.recompute()

fillet2 = body.newObject("PartDesign::Fillet", "Fillet001")
fillet2.Base = (fillet, edges_at(fillet, [
    (83.5, 16.5, 120),
    (-83.5, 16.5, 120),
    (-83.5, 16.5, -5),
    (83.5, 16.5, -5),
]))
fillet2.Radius = 5

doc.recompute()
